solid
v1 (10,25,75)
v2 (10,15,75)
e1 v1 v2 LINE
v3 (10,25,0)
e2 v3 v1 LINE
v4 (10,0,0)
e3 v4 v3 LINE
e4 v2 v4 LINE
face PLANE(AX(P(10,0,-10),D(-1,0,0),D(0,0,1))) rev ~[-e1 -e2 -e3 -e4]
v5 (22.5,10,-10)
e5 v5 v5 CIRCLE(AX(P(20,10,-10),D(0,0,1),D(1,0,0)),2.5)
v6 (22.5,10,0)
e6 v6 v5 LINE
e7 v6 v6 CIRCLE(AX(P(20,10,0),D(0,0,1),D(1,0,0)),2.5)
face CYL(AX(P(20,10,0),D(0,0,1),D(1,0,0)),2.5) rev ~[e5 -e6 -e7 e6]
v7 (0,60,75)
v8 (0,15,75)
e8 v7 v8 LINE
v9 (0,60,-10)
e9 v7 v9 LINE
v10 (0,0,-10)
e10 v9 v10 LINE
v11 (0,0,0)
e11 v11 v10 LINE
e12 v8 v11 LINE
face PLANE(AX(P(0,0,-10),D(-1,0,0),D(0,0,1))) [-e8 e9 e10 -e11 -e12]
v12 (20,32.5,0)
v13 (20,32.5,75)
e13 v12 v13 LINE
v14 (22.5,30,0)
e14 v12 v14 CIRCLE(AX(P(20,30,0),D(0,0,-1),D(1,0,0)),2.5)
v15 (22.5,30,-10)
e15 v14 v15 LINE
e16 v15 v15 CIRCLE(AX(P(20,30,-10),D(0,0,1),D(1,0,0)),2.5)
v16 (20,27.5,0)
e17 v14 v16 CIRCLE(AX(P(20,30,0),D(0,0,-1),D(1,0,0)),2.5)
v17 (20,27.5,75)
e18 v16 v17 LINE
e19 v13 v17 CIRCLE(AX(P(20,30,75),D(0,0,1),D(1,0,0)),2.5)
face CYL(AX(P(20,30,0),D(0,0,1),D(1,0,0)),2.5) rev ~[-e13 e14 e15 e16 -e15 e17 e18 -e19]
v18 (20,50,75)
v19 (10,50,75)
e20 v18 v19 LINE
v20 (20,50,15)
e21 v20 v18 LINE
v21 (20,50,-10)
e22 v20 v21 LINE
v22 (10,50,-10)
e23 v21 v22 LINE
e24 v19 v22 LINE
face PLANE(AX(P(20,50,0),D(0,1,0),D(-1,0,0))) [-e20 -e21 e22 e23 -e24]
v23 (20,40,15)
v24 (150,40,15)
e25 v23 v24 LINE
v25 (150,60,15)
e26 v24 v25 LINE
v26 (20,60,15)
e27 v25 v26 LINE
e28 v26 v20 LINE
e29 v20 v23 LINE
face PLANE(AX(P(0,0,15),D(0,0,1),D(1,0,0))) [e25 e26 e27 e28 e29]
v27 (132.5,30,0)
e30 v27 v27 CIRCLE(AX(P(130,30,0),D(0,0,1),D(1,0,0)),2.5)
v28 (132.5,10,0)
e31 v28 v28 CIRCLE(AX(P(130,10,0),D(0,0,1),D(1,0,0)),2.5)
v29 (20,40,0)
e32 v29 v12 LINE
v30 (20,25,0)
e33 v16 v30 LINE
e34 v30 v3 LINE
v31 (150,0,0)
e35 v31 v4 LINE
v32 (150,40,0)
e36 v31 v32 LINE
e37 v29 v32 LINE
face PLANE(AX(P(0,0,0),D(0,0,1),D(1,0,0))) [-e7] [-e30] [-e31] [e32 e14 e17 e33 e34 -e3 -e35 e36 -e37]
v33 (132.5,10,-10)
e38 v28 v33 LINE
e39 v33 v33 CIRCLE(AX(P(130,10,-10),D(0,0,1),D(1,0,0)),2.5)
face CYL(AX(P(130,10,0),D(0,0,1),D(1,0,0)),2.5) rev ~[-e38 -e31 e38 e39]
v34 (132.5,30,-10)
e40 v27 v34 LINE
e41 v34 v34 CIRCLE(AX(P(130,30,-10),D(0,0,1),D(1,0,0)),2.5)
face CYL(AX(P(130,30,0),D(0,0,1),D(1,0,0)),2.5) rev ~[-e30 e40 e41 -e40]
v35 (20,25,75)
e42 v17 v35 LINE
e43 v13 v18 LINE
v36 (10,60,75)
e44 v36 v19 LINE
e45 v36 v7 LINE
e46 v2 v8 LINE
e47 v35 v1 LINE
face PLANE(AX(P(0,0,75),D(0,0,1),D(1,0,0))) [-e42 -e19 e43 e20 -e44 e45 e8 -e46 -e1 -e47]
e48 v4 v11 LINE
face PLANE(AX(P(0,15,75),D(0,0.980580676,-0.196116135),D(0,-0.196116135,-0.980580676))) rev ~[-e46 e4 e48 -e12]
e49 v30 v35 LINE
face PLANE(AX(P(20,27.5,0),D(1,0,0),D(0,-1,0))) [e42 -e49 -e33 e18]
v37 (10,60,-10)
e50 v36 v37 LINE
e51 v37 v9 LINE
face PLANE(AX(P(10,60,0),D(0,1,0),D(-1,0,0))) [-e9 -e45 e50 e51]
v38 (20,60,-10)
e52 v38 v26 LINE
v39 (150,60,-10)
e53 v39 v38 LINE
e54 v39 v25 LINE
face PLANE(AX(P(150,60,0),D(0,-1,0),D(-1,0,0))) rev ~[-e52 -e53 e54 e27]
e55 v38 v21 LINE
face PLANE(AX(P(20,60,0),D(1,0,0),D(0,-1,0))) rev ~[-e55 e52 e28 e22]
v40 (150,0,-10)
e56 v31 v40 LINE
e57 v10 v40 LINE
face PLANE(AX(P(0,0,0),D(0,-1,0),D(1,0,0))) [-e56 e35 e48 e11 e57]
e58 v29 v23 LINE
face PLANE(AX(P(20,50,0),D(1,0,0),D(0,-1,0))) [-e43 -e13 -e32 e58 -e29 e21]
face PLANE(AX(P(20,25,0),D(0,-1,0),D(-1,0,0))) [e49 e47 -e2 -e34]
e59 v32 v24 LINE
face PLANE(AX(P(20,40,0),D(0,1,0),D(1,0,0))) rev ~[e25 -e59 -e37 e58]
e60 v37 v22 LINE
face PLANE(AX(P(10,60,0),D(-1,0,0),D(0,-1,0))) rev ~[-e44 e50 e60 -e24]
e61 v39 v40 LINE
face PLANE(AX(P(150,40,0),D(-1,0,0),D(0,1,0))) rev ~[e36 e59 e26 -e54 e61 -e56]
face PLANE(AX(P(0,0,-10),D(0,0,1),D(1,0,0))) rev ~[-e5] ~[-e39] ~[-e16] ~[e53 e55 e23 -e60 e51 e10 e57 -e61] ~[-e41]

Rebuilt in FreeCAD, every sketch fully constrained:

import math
import FreeCAD as App
import Part
import Sketcher
Q = App.Units.Quantity

doc = App.newDocument("Part")
body = doc.addObject("PartDesign::Body", "Body")

# Sketch on XY plane
sketch1 = body.newObject("Sketcher::SketchObject", "Sketch")
sketch1.AttachmentSupport = (doc.getObject("XY_Plane"), [""])
sketch1.MapMode = "FlatFace"
sketch1.addGeometry([
    Part.LineSegment(App.Vector(0, 0, 0), App.Vector(150, 0, 0)),  # 0
    Part.LineSegment(App.Vector(150, 0, 0), App.Vector(150, 60, 0)),  # 1
    Part.LineSegment(App.Vector(150, 60, 0), App.Vector(20, 60, 0)),  # 2
    Part.LineSegment(App.Vector(20, 60, 0), App.Vector(20, 50, 0)),  # 3
    Part.LineSegment(App.Vector(20, 50, 0), App.Vector(10, 50, 0)),  # 4
    Part.LineSegment(App.Vector(10, 50, 0), App.Vector(10, 60, 0)),  # 5
    Part.LineSegment(App.Vector(10, 60, 0), App.Vector(0, 60, 0)),  # 6
    Part.LineSegment(App.Vector(0, 60, 0), App.Vector(0, 0, 0)),  # 7
    Part.Circle(App.Vector(130, 30, 0), App.Vector(0, 0, 1), 2.5),  # 8
    Part.Circle(App.Vector(130, 10, 0), App.Vector(0, 0, 1), 2.5),  # 9
    Part.Circle(App.Vector(20, 30, 0), App.Vector(0, 0, 1), 2.5),  # 10
    Part.Circle(App.Vector(20, 10, 0), App.Vector(0, 0, 1), 2.5),  # 11
], False)
sketch1.addConstraint([
    Sketcher.Constraint("Coincident", 0, 2, 1, 1),
    Sketcher.Constraint("Coincident", 1, 2, 2, 1),
    Sketcher.Constraint("Coincident", 2, 2, 3, 1),
    Sketcher.Constraint("Coincident", 3, 2, 4, 1),
    Sketcher.Constraint("Coincident", 4, 2, 5, 1),
    Sketcher.Constraint("Coincident", 5, 2, 6, 1),
    Sketcher.Constraint("Coincident", 6, 2, 7, 1),
    Sketcher.Constraint("Coincident", 7, 2, 0, 1),
    Sketcher.Constraint("Horizontal", 0),
    Sketcher.Constraint("Vertical", 1),
    Sketcher.Constraint("Horizontal", 2),
    Sketcher.Constraint("Vertical", 3),
    Sketcher.Constraint("Horizontal", 4),
    Sketcher.Constraint("Vertical", 5),
    Sketcher.Constraint("Horizontal", 6),
    Sketcher.Constraint("Vertical", 7),
    Sketcher.Constraint("Coincident", 7, 2, -1, 1),
    Sketcher.Constraint("Equal", 8, 9),
    Sketcher.Constraint("Equal", 9, 10),
    Sketcher.Constraint("Equal", 10, 11),
    Sketcher.Constraint("Horizontal", 8, 3, 10, 3),
    Sketcher.Constraint("Horizontal", 9, 3, 11, 3),
    Sketcher.Constraint("Horizontal", 2, 2, 5, 2),
    Sketcher.Constraint("Vertical", 8, 3, 9, 3),
    Sketcher.Constraint("Vertical", 10, 3, 11, 3),
    Sketcher.Constraint("Vertical", 11, 3, 2, 2),
    Sketcher.Constraint("Equal", 4, 6),
    Sketcher.Constraint("Equal", 6, 3),
    Sketcher.Constraint("Diameter", 8, Q("5 mm")),
    Sketcher.Constraint("DistanceX", 0, 1, 0, 2, Q("150 mm")),
    Sketcher.Constraint("DistanceX", 4, 2, 4, 1, Q("10 mm")),
    Sketcher.Constraint("DistanceY", 1, 1, 1, 2, Q("60 mm")),
    Sketcher.Constraint("DistanceY", -1, 1, 8, 3, Q("30 mm")),
    Sketcher.Constraint("DistanceY", -1, 1, 9, 3, Q("10 mm")),
    Sketcher.Constraint("DistanceX", 9, 3, 0, 2, Q("20 mm")),
])
pad1 = body.newObject("PartDesign::Pad", "Pad")
pad1.Profile = sketch1
pad1.Length = 10
pad1.Reversed = True

# Sketch on XY plane
sketch2 = body.newObject("Sketcher::SketchObject", "Sketch001")
sketch2.AttachmentSupport = (doc.getObject("XY_Plane"), [""])
sketch2.MapMode = "FlatFace"
sketch2.addGeometry([
    Part.LineSegment(App.Vector(0, 60, 0), App.Vector(0, 15, 0)),  # 0
    Part.LineSegment(App.Vector(0, 15, 0), App.Vector(10, 15, 0)),  # 1
    Part.LineSegment(App.Vector(10, 15, 0), App.Vector(10, 25, 0)),  # 2
    Part.LineSegment(App.Vector(10, 25, 0), App.Vector(20, 25, 0)),  # 3
    Part.LineSegment(App.Vector(20, 25, 0), App.Vector(20, 27.5, 0)),  # 4
    Part.ArcOfCircle(Part.Circle(App.Vector(20, 30, 0), App.Vector(0, 0, 1), 2.5), math.radians(90), math.radians(270)),  # 5
    Part.LineSegment(App.Vector(20, 32.5, 0), App.Vector(20, 50, 0)),  # 6
    Part.LineSegment(App.Vector(20, 50, 0), App.Vector(10, 50, 0)),  # 7
    Part.LineSegment(App.Vector(10, 50, 0), App.Vector(10, 60, 0)),  # 8
    Part.LineSegment(App.Vector(10, 60, 0), App.Vector(0, 60, 0)),  # 9
], False)
sketch2.addConstraint([
    Sketcher.Constraint("Coincident", 0, 2, 1, 1),
    Sketcher.Constraint("Coincident", 1, 2, 2, 1),
    Sketcher.Constraint("Coincident", 2, 2, 3, 1),
    Sketcher.Constraint("Coincident", 3, 2, 4, 1),
    Sketcher.Constraint("Coincident", 4, 2, 5, 2),
    Sketcher.Constraint("Coincident", 5, 1, 6, 1),
    Sketcher.Constraint("Coincident", 6, 2, 7, 1),
    Sketcher.Constraint("Coincident", 7, 2, 8, 1),
    Sketcher.Constraint("Coincident", 8, 2, 9, 1),
    Sketcher.Constraint("Coincident", 9, 2, 0, 1),
    Sketcher.Constraint("Vertical", 0),
    Sketcher.Constraint("Horizontal", 1),
    Sketcher.Constraint("Vertical", 2),
    Sketcher.Constraint("Horizontal", 3),
    Sketcher.Constraint("Vertical", 4),
    Sketcher.Constraint("Vertical", 6),
    Sketcher.Constraint("Horizontal", 7),
    Sketcher.Constraint("Vertical", 8),
    Sketcher.Constraint("Horizontal", 9),
    Sketcher.Constraint("PointOnObject", 0, 2, -2),
    Sketcher.Constraint("Vertical", 5, 3, 3, 2),
    Sketcher.Constraint("Vertical", 4, 2, 5, 1),
    Sketcher.Constraint("Vertical", 2, 2, 7, 2),
    Sketcher.Constraint("Equal", 1, 3),
    Sketcher.Constraint("Equal", 9, 2),
    Sketcher.Constraint("Equal", 2, 8),
    Sketcher.Constraint("Radius", 5, Q("2.5 mm")),
    Sketcher.Constraint("DistanceX", 1, 1, 1, 2, Q("10 mm")),
    Sketcher.Constraint("DistanceY", -1, 1, 5, 3, Q("30 mm")),
    Sketcher.Constraint("DistanceY", -1, 1, 2, 2, Q("25 mm")),
    Sketcher.Constraint("DistanceY", -1, 1, 8, 2, Q("60 mm")),
])
pad2 = body.newObject("PartDesign::Pad", "Pad001")
pad2.Profile = sketch2
pad2.Length = 75

# Sketch on YZ plane
sketch3 = body.newObject("Sketcher::SketchObject", "Sketch002")
sketch3.AttachmentSupport = (doc.getObject("YZ_Plane"), [""])
sketch3.MapMode = "FlatFace"
sketch3.addGeometry([
    Part.LineSegment(App.Vector(0, 0, 0), App.Vector(15, 75, 0)),
    Part.LineSegment(App.Vector(15, 75, 0), App.Vector(15, 0, 0)),
    Part.LineSegment(App.Vector(15, 0, 0), App.Vector(0, 0, 0)),
], False)
sketch3.addConstraint([
    Sketcher.Constraint("Coincident", 0, 2, 1, 1),
    Sketcher.Constraint("Coincident", 1, 2, 2, 1),
    Sketcher.Constraint("Coincident", 2, 2, 0, 1),
    Sketcher.Constraint("Vertical", 1),
    Sketcher.Constraint("Horizontal", 2),
    Sketcher.Constraint("Coincident", 2, 2, -1, 1),
    Sketcher.Constraint("DistanceX", 2, 2, 2, 1, Q("15 mm")),
    Sketcher.Constraint("DistanceY", 1, 2, 1, 1, Q("75 mm")),
])
pad3 = body.newObject("PartDesign::Pad", "Pad002")
pad3.Profile = sketch3
pad3.Length = 10

# Sketch on XY plane
sketch4 = body.newObject("Sketcher::SketchObject", "Sketch003")
sketch4.AttachmentSupport = (doc.getObject("XY_Plane"), [""])
sketch4.MapMode = "FlatFace"
sketch4.addGeometry([
    Part.LineSegment(App.Vector(20, 40, 0), App.Vector(150, 40, 0)),
    Part.LineSegment(App.Vector(150, 40, 0), App.Vector(150, 60, 0)),
    Part.LineSegment(App.Vector(150, 60, 0), App.Vector(20, 60, 0)),
    Part.LineSegment(App.Vector(20, 60, 0), App.Vector(20, 40, 0)),
], False)
sketch4.addConstraint([
    Sketcher.Constraint("Coincident", 0, 2, 1, 1),
    Sketcher.Constraint("Coincident", 1, 2, 2, 1),
    Sketcher.Constraint("Coincident", 2, 2, 3, 1),
    Sketcher.Constraint("Coincident", 3, 2, 0, 1),
    Sketcher.Constraint("Horizontal", 0),
    Sketcher.Constraint("Vertical", 1),
    Sketcher.Constraint("Horizontal", 2),
    Sketcher.Constraint("Vertical", 3),
    Sketcher.Constraint("DistanceY", 1, 1, 1, 2, Q("20 mm")),
    Sketcher.Constraint("DistanceX", -1, 1, 0, 2, Q("150 mm")),
    Sketcher.Constraint("DistanceY", -1, 1, 1, 2, Q("60 mm")),
    Sketcher.Constraint("DistanceX", -1, 1, 2, 2, Q("20 mm")),
])
pad4 = body.newObject("PartDesign::Pad", "Pad003")
pad4.Profile = sketch4
pad4.Length = 15

doc.recompute()
